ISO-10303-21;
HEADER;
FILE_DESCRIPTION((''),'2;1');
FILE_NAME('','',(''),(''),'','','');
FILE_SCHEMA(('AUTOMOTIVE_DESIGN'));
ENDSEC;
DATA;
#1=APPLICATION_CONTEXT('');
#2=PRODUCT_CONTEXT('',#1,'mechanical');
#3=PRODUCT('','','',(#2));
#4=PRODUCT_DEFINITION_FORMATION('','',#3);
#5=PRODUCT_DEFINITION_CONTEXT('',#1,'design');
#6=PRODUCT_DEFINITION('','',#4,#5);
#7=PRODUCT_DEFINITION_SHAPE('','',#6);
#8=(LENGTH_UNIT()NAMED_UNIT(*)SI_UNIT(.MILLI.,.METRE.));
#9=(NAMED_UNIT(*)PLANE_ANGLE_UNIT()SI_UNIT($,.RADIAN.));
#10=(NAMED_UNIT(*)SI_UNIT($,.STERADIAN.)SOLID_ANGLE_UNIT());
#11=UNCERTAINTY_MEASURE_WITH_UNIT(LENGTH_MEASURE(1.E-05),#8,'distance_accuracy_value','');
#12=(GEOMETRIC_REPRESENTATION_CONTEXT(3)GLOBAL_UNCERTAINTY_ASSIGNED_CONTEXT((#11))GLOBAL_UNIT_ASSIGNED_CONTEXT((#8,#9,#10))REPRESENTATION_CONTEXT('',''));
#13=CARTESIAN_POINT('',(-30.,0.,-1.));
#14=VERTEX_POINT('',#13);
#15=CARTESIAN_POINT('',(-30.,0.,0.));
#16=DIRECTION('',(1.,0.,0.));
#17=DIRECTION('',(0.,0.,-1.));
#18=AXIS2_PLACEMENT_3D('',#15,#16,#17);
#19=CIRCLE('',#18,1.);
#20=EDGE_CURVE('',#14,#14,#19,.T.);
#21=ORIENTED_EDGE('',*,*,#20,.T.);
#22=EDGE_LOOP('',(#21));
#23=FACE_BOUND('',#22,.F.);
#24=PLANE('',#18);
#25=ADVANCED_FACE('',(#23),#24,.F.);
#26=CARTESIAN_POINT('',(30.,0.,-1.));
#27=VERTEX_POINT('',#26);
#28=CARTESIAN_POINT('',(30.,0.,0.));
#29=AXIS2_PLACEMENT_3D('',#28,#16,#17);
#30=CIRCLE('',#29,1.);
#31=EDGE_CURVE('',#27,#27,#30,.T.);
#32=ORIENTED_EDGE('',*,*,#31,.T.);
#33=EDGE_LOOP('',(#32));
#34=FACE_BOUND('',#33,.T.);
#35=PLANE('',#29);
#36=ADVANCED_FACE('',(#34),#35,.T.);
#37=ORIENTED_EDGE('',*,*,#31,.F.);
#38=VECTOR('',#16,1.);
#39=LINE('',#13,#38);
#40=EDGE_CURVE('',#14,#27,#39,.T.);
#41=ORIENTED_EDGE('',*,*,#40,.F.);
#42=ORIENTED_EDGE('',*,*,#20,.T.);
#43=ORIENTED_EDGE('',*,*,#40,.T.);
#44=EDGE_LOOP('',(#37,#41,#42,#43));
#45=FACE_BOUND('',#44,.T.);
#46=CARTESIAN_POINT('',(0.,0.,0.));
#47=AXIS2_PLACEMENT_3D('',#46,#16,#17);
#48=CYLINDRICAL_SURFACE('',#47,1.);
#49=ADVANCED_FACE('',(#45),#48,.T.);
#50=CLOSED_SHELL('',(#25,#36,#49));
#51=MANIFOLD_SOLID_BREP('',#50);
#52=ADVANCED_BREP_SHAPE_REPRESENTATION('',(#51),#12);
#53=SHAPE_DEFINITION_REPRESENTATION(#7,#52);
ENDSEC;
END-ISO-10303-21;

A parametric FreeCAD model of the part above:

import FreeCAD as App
import Part
import Sketcher
from FreeCAD import Vector
Q = App.Units.Quantity

doc = App.newDocument("Part")
body = doc.addObject("PartDesign::Body", "Body")

sketch1 = doc.addObject("Sketcher::SketchObject", "Sketch")
body.addObject(sketch1)
sketch1.AttachmentSupport = (doc.YZ_Plane, [""])
sketch1.MapMode = "FlatFace"
sketch1.addGeometry(Part.Circle(Vector(0, 0, 0), Vector(0, 0, 1), 1), False)
sketch1.addConstraint([
    Sketcher.Constraint("Coincident", 0, 3, -1, 1),
    Sketcher.Constraint("Diameter", 0, Q("2 mm")),
])
pad1 = doc.addObject("PartDesign::Pad", "Pad")
body.addObject(pad1)
pad1.Profile = sketch1
pad1.Type = "TwoLengths"
pad1.Length = 30
pad1.Length2 = 30

doc.recompute()
